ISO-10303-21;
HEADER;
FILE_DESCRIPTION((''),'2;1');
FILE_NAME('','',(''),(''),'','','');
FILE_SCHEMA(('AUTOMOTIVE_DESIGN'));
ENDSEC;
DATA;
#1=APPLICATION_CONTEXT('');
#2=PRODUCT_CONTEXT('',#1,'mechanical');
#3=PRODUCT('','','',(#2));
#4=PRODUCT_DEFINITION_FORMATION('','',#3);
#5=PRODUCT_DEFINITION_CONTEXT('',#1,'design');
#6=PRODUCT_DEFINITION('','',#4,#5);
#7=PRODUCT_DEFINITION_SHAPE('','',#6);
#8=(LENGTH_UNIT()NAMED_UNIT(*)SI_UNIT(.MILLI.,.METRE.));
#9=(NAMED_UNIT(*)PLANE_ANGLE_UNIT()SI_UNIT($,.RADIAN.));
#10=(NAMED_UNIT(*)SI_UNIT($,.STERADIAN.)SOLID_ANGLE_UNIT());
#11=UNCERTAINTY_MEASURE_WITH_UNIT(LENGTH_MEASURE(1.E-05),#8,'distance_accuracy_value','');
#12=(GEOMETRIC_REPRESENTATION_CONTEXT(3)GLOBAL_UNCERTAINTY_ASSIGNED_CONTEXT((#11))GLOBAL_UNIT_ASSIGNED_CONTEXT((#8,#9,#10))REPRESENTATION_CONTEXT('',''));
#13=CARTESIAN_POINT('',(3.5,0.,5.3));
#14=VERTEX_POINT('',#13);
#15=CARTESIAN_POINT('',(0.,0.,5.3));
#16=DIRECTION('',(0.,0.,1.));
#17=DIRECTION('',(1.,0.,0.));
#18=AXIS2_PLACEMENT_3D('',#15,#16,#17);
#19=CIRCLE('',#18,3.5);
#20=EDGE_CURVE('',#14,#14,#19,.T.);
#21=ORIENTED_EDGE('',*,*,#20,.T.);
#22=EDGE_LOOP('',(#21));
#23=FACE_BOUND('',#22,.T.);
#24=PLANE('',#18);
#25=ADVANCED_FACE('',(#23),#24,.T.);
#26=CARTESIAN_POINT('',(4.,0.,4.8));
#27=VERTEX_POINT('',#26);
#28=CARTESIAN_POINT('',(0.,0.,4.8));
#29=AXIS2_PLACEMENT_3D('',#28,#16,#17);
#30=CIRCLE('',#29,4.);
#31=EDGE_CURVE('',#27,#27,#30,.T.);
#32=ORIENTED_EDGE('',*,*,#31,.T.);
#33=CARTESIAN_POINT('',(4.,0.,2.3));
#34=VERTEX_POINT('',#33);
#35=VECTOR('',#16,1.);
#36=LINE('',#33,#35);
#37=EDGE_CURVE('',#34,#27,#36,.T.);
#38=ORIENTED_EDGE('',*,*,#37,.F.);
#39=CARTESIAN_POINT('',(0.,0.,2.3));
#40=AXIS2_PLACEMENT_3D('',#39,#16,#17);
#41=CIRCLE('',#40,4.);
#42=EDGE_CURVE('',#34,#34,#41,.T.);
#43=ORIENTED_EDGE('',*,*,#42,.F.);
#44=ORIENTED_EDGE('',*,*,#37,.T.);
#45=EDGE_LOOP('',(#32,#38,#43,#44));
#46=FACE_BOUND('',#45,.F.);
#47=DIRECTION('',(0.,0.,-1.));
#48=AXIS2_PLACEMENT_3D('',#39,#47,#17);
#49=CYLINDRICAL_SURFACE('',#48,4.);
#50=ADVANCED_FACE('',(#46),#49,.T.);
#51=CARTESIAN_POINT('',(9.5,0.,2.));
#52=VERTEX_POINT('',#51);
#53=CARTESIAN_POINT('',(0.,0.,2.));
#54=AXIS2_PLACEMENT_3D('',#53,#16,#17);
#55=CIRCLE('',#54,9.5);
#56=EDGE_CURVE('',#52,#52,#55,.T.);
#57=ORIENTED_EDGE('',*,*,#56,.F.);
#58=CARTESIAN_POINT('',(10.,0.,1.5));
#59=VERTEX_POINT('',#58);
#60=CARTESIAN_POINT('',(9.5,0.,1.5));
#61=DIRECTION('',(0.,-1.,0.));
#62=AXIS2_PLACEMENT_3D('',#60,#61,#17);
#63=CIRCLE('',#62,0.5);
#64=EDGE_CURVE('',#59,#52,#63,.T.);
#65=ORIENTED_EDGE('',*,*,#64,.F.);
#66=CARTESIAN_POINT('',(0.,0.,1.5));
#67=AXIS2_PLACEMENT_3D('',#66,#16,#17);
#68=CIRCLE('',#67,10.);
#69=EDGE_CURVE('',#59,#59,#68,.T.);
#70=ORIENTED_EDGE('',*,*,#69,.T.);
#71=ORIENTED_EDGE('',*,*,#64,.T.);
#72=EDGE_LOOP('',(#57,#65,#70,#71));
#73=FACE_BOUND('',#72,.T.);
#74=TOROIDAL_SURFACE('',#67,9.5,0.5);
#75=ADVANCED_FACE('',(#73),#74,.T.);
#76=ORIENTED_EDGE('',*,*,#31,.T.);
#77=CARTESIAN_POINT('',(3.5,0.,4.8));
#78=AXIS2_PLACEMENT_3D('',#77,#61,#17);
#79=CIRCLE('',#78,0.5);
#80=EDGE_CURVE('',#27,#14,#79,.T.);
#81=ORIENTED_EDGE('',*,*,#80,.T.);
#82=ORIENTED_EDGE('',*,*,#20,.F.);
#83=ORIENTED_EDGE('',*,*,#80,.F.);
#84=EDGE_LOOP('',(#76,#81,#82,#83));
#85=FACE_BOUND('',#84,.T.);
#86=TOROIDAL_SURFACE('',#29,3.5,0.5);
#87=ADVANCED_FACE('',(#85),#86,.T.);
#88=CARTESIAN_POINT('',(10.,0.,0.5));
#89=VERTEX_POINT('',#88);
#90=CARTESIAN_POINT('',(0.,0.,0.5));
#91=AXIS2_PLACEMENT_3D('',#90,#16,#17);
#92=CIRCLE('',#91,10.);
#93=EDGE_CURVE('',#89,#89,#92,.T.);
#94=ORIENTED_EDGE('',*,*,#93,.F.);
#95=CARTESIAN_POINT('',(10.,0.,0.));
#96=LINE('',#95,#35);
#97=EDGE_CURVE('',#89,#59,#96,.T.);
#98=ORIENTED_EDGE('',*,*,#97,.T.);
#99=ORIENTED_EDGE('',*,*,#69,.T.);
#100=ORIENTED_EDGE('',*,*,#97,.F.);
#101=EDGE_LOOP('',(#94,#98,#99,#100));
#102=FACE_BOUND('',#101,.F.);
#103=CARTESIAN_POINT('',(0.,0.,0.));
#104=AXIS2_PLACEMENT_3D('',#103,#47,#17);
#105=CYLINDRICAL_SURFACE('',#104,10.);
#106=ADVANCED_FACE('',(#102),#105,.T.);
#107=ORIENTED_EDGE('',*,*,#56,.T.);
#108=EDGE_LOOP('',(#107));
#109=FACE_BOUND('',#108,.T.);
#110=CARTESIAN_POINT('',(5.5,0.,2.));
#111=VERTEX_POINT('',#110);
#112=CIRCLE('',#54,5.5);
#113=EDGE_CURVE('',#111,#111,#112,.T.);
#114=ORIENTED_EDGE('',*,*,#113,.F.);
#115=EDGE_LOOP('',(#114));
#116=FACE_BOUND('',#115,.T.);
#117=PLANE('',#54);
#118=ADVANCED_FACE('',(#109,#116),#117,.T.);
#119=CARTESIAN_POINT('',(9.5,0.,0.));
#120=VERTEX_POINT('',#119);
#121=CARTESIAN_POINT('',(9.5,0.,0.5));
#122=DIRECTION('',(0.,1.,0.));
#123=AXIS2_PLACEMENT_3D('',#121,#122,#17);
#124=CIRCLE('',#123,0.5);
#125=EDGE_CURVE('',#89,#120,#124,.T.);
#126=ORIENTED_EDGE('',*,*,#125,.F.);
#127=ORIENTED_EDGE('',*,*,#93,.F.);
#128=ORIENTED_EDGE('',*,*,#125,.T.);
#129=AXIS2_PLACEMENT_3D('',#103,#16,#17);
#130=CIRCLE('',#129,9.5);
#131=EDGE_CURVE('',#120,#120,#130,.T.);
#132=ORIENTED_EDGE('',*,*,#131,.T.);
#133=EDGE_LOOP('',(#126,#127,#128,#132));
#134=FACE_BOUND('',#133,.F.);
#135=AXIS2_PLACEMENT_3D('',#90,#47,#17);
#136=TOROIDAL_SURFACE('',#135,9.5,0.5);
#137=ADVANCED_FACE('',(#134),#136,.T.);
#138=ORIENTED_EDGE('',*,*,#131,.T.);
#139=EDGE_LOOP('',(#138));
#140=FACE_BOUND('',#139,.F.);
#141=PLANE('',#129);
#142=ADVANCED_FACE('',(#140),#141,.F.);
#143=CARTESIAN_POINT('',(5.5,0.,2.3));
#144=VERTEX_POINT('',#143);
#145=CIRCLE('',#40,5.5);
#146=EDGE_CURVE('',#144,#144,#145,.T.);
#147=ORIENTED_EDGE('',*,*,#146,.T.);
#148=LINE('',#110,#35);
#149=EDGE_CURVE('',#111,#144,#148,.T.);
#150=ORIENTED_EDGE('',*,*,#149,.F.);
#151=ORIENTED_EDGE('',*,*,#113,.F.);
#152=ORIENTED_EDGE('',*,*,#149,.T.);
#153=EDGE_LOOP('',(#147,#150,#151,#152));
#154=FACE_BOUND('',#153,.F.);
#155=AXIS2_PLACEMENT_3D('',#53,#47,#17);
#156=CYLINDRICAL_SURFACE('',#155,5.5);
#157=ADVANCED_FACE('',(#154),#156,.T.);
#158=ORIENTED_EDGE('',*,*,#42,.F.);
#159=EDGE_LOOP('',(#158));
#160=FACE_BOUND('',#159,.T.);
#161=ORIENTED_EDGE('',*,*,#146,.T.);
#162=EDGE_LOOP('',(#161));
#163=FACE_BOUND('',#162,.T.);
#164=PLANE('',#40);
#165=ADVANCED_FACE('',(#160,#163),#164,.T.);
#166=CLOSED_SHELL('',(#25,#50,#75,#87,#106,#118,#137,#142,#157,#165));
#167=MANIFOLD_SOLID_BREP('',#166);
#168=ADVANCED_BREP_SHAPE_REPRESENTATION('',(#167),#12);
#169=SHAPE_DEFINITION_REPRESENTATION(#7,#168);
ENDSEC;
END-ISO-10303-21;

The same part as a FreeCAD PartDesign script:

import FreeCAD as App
import Part
import Sketcher
Q = App.Units.Quantity


def edges_at(feature, points):
    """Names of the edges that pass closest to the given points."""
    edges = feature.Shape.Edges
    near = lambda p: min(range(len(edges)), key=lambda i: edges[i].distToShape(Part.Vertex(*p))[0])
    return sorted({f"Edge{near(p) + 1}" for p in points})

doc = App.newDocument("Part")
body = doc.addObject("PartDesign::Body", "Body")

sketch1 = body.newObject("Sketcher::SketchObject", "Sketch")
sketch1.AttachmentSupport = (doc.getObject("XY_Plane"), [""])
sketch1.MapMode = "FlatFace"
sketch1.addGeometry(Part.Circle(App.Vector(0, 0, 0), App.Vector(0, 0, 1), 10), False)
sketch1.addConstraint([
    Sketcher.Constraint("Coincident", 0, 3, -1, 1),
    Sketcher.Constraint("Diameter", 0, Q("20 mm")),
])
pad1 = body.newObject("PartDesign::Pad", "Pad")
pad1.Profile = sketch1
pad1.Length = 2

sketch2 = body.newObject("Sketcher::SketchObject", "Sketch001")
sketch2.AttachmentSupport = (doc.getObject("XY_Plane"), [""])
sketch2.MapMode = "FlatFace"
sketch2.AttachmentOffset = App.Placement(App.Vector(0, 0, 2), App.Rotation())
sketch2.addGeometry(Part.Circle(App.Vector(0, 0, 0), App.Vector(0, 0, 1), 5.5), False)
sketch2.addConstraint([
    Sketcher.Constraint("Coincident", 0, 3, -1, 1),
    Sketcher.Constraint("Diameter", 0, Q("11 mm")),
])
pad2 = body.newObject("PartDesign::Pad", "Pad001")
pad2.Profile = sketch2
pad2.Length = 0.3

sketch3 = body.newObject("Sketcher::SketchObject", "Sketch002")
sketch3.AttachmentSupport = (doc.getObject("XY_Plane"), [""])
sketch3.MapMode = "FlatFace"
sketch3.AttachmentOffset = App.Placement(App.Vector(0, 0, 2.3), App.Rotation())
sketch3.addGeometry(Part.Circle(App.Vector(0, 0, 0), App.Vector(0, 0, 1), 4), False)
sketch3.addConstraint([
    Sketcher.Constraint("Coincident", 0, 3, -1, 1),
    Sketcher.Constraint("Diameter", 0, Q("8 mm")),
])
pad3 = body.newObject("PartDesign::Pad", "Pad002")
pad3.Profile = sketch3
pad3.Length = 3
doc.recompute()

fillet = body.newObject("PartDesign::Fillet", "Fillet")
fillet.Base = (pad3, edges_at(pad3, [(-4, 0, 5.3), (-10, 0, 2), (-10, 0, 0)]))
fillet.Radius = 0.5

doc.recompute()
